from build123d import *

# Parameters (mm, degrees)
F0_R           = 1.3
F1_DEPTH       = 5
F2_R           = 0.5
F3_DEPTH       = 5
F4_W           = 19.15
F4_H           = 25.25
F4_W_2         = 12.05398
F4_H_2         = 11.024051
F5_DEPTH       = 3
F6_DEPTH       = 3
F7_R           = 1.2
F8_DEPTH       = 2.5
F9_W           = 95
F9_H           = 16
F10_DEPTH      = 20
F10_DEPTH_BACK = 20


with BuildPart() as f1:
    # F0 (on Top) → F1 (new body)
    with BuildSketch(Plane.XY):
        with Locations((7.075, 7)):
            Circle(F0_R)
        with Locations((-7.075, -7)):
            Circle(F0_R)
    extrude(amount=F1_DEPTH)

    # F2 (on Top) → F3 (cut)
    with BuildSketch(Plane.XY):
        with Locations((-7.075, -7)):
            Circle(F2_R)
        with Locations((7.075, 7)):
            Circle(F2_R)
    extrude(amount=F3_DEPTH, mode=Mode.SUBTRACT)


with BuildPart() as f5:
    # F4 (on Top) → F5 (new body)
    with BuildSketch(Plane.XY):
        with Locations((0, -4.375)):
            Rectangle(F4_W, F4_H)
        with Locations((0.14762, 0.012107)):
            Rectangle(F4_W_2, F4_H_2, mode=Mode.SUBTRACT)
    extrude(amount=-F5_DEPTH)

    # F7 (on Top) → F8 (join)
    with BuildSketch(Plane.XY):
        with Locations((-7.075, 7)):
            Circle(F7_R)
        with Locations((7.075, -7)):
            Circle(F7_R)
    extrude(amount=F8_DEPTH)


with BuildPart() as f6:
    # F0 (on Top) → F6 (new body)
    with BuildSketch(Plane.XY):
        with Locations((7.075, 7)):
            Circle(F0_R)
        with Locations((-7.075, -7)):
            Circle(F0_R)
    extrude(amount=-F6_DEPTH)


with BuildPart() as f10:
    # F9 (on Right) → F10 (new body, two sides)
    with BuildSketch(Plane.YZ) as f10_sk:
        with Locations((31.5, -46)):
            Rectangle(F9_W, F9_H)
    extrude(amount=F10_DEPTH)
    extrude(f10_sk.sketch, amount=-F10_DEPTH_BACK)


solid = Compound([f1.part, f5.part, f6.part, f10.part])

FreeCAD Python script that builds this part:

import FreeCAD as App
import Part
import Sketcher


def add_polygon(sketch, points):
    """Adds a closed chain of lines whose ends are joined by coincident constraints."""
    first, n = sketch.GeometryCount, len(points)
    for a, b in zip(points, points[1:] + points[:1]):
        sketch.addGeometry(Part.LineSegment(App.Vector(*a, 0), App.Vector(*b, 0)), False)
    for i in range(n):
        sketch.addConstraint(Sketcher.Constraint("Coincident", first + i, 2, first + (i + 1) % n, 1))

doc = App.newDocument("Part")
body = doc.addObject("PartDesign::Body", "Body")
body.AllowCompound = True

# Sketch on XY plane
sketch1 = doc.addObject("Sketcher::SketchObject", "Sketch")
body.addObject(sketch1)
sketch1.AttachmentSupport = (doc.XY_Plane, [""])
sketch1.MapMode = "FlatFace"
sketch1.addGeometry([
    Part.Circle(App.Vector(7.075, 7, 0), App.Vector(0, 0, 1), 1.3),
    Part.Circle(App.Vector(-7.075, -7, 0), App.Vector(0, 0, 1), 1.3),
], False)
sketch1.addConstraint([
    Sketcher.Constraint("Equal", 0, 1),
    Sketcher.Constraint("Symmetric", 0, 3, 1, 3, -1, 1),
    Sketcher.Constraint("Diameter", 0, 2.6),
    Sketcher.Constraint("DistanceY", -1, 1, 0, 3, 7.0),
    Sketcher.Constraint("DistanceX", 1, 3, 0, 3, 14.15),
])
pad1 = doc.addObject("PartDesign::Pad", "Pad")
body.addObject(pad1)
pad1.Profile = sketch1
pad1.Length = 5

# Sketch on XY plane
sketch2 = doc.addObject("Sketcher::SketchObject", "Sketch001")
body.addObject(sketch2)
sketch2.AttachmentSupport = (doc.XY_Plane, [""])
sketch2.MapMode = "FlatFace"
sketch2.addGeometry([
    Part.Circle(App.Vector(-7.075, -7, 0), App.Vector(0, 0, 1), 0.5),
    Part.Circle(App.Vector(7.075, 7, 0), App.Vector(0, 0, 1), 0.5),
], False)
sketch2.addConstraint([
    Sketcher.Constraint("Equal", 0, 1),
    Sketcher.Constraint("Symmetric", 0, 3, 1, 3, -1, 1),
    Sketcher.Constraint("Diameter", 0, 1.0),
    Sketcher.Constraint("DistanceY", 0, 3, -1, 1, 7.0),
    Sketcher.Constraint("DistanceX", 0, 3, 1, 3, 14.15),
])
pocket1 = doc.addObject("PartDesign::Pocket", "Pocket")
body.addObject(pocket1)
pocket1.Profile = sketch2
pocket1.Length = 5
pocket1.Reversed = True
body2 = doc.addObject("PartDesign::Body", "Body001")

# Sketch on XY plane
sketch3 = doc.addObject("Sketcher::SketchObject", "Sketch002")
body2.addObject(sketch3)
sketch3.AttachmentSupport = (doc.getObject("XY_Plane001"), [""])
sketch3.MapMode = "FlatFace"
add_polygon(sketch3, [(-9.575, 8.25), (-9.575, -17), (9.575, -17), (9.575, 8.25)])  # lines 0-3
add_polygon(sketch3, [(6.17461, -5.499918), (-5.87937, -5.499918), (-5.87937, 5.524133), (6.17461, 5.524133)])  # lines 4-7
sketch3.addConstraint([
    Sketcher.Constraint("Vertical", 0),
    Sketcher.Constraint("Horizontal", 1),
    Sketcher.Constraint("Vertical", 2),
    Sketcher.Constraint("Horizontal", 3),
    Sketcher.Constraint("Horizontal", 4),
    Sketcher.Constraint("Vertical", 5),
    Sketcher.Constraint("Horizontal", 6),
    Sketcher.Constraint("Vertical", 7),
    Sketcher.Constraint("DistanceY", 0, 2, -1, 1, 17.0),
    Sketcher.Constraint("DistanceX", 1, 1, 1, 2, 19.15),
    Sketcher.Constraint("DistanceY", 0, 2, 0, 1, 25.25),
    Sketcher.Constraint("DistanceX", 0, 2, -1, 1, 9.575),
    Sketcher.Constraint("DistanceX", 4, 2, 4, 1, 12.05398),
    Sketcher.Constraint("DistanceY", 5, 1, 5, 2, 11.024051),
    Sketcher.Constraint("DistanceX", 4, 2, -1, 1, 5.87937),
    Sketcher.Constraint("DistanceY", 4, 2, -1, 1, 5.499918),
])
pad2 = doc.addObject("PartDesign::Pad", "Pad001")
body2.addObject(pad2)
pad2.Profile = sketch3
pad2.Length = 3
pad2.Reversed = True

# Sketch on XY plane
sketch4 = doc.addObject("Sketcher::SketchObject", "Sketch003")
body2.addObject(sketch4)
sketch4.AttachmentSupport = (doc.getObject("XY_Plane001"), [""])
sketch4.MapMode = "FlatFace"
sketch4.addGeometry([
    Part.Circle(App.Vector(-7.075, 7, 0), App.Vector(0, 0, 1), 1.2),
    Part.Circle(App.Vector(7.075, -7, 0), App.Vector(0, 0, 1), 1.2),
], False)
sketch4.addConstraint([
    Sketcher.Constraint("Equal", 0, 1),
    Sketcher.Constraint("Symmetric", 0, 3, 1, 3, -1, 1),
    Sketcher.Constraint("Diameter", 0, 2.4),
    Sketcher.Constraint("DistanceY", -1, 1, 0, 3, 7.0),
    Sketcher.Constraint("DistanceX", 0, 3, 1, 3, 14.15),
])
pad3 = doc.addObject("PartDesign::Pad", "Pad002")
body2.addObject(pad3)
pad3.Profile = sketch4
pad3.Length = 2.5
body3 = doc.addObject("PartDesign::Body", "Body002")
body3.AllowCompound = True

# Sketch on XY plane
sketch5 = doc.addObject("Sketcher::SketchObject", "Sketch004")
body3.addObject(sketch5)
sketch5.AttachmentSupport = (doc.getObject("XY_Plane002"), [""])
sketch5.MapMode = "FlatFace"
sketch5.addGeometry([
    Part.Circle(App.Vector(7.075, 7, 0), App.Vector(0, 0, 1), 1.3),
    Part.Circle(App.Vector(-7.075, -7, 0), App.Vector(0, 0, 1), 1.3),
], False)
sketch5.addConstraint([
    Sketcher.Constraint("Equal", 0, 1),
    Sketcher.Constraint("Symmetric", 0, 3, 1, 3, -1, 1),
    Sketcher.Constraint("Diameter", 0, 2.6),
    Sketcher.Constraint("DistanceY", -1, 1, 0, 3, 7.0),
    Sketcher.Constraint("DistanceX", 1, 3, 0, 3, 14.15),
])
pad4 = doc.addObject("PartDesign::Pad", "Pad003")
body3.addObject(pad4)
pad4.Profile = sketch5
pad4.Length = 3
pad4.Reversed = True
body4 = doc.addObject("PartDesign::Body", "Body003")

# Sketch on YZ plane
sketch6 = doc.addObject("Sketcher::SketchObject", "Sketch005")
body4.addObject(sketch6)
sketch6.AttachmentSupport = (doc.getObject("YZ_Plane003"), [""])
sketch6.MapMode = "FlatFace"
add_polygon(sketch6, [(-16, -38), (-16, -54), (79, -54), (79, -38)])  # lines 0-3
sketch6.addConstraint([
    Sketcher.Constraint("Vertical", 0),
    Sketcher.Constraint("Horizontal", 1),
    Sketcher.Constraint("Vertical", 2),
    Sketcher.Constraint("Horizontal", 3),
    Sketcher.Constraint("DistanceX", 1, 1, 1, 2, 95.0),
    Sketcher.Constraint("DistanceY", 0, 2, 0, 1, 16.0),
    Sketcher.Constraint("DistanceX", 0, 2, -1, 1, 16.0),
    Sketcher.Constraint("DistanceY", 0, 2, -1, 1, 54.0),
])
pad5 = doc.addObject("PartDesign::Pad", "Pad004")
body4.addObject(pad5)
pad5.Profile = sketch6
pad5.Type = "TwoLengths"
pad5.Length = 20
pad5.Length2 = 20

doc.recompute()
